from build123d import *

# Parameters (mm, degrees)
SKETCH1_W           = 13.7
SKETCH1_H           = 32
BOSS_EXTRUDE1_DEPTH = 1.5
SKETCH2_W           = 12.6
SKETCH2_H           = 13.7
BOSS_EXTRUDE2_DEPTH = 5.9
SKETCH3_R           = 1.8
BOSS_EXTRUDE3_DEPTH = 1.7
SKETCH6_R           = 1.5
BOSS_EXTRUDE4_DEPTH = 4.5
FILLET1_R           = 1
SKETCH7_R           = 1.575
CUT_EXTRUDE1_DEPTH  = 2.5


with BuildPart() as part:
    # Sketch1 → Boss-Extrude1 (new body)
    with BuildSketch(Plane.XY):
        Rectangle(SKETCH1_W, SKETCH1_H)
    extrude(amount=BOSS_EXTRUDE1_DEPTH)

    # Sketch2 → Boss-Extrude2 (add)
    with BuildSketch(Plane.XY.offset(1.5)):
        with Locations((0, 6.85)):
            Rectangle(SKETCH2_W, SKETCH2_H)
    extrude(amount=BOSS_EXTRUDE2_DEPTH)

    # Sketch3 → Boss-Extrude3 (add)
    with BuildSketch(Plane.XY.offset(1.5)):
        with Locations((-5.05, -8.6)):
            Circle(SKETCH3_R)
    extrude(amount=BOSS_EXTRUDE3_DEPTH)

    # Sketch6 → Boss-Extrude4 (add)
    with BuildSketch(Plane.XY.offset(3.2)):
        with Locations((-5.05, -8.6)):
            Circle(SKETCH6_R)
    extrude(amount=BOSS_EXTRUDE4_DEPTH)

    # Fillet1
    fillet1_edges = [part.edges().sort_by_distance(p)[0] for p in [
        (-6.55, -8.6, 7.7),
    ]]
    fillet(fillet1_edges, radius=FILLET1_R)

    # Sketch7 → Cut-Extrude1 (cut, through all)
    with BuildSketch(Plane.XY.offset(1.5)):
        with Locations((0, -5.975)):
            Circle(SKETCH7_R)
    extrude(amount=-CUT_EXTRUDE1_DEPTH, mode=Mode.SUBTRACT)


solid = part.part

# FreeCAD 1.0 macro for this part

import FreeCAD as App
import Part
import Sketcher


def edges_at(feature, points):
    """Names of the edges that pass closest to the given points."""
    edges = feature.Shape.Edges
    near = lambda p: min(range(len(edges)), key=lambda i: edges[i].distToShape(Part.Vertex(*p))[0])
    return sorted({f"Edge{near(p) + 1}" for p in points})

doc = App.newDocument("Part")
body = doc.addObject("PartDesign::Body", "Body")

# Sketch on XY plane
sketch1 = body.newObject("Sketcher::SketchObject", "Sketch")
sketch1.AttachmentSupport = (doc.getObject("XY_Plane"), [""])
sketch1.MapMode = "FlatFace"
sketch1.addGeometry([
    Part.LineSegment(App.Vector(-7, 16, 0), App.Vector(-7, -16, 0)),
    Part.LineSegment(App.Vector(-7, -16, 0), App.Vector(7, -16, 0)),
    Part.LineSegment(App.Vector(7, -16, 0), App.Vector(7, 16, 0)),
    Part.LineSegment(App.Vector(7, 16, 0), App.Vector(-7, 16, 0)),
], False)
sketch1.addConstraint([
    Sketcher.Constraint("Coincident", 0, 2, 1, 1),
    Sketcher.Constraint("Coincident", 1, 2, 2, 1),
    Sketcher.Constraint("Coincident", 2, 2, 3, 1),
    Sketcher.Constraint("Coincident", 3, 2, 0, 1),
    Sketcher.Constraint("Vertical", 0),
    Sketcher.Constraint("Horizontal", 1),
    Sketcher.Constraint("Vertical", 2),
    Sketcher.Constraint("Horizontal", 3),
    Sketcher.Constraint("Symmetric", 0, 2, 2, 2, -1, 1),
    Sketcher.Constraint("DistanceY", 0, 2, 0, 1, 32.0),
    Sketcher.Constraint("DistanceX", 1, 1, 1, 2, 13.7),
])
pad1 = body.newObject("PartDesign::Pad", "Pad")
pad1.Profile = sketch1
pad1.Length = 1.5

# Sketch on XY plane
sketch2 = body.newObject("Sketcher::SketchObject", "Sketch001")
sketch2.AttachmentSupport = (doc.getObject("XY_Plane"), [""])
sketch2.MapMode = "FlatFace"
sketch2.AttachmentOffset = App.Placement(App.Vector(0, 0, 1.5), App.Rotation())
sketch2.addGeometry([
    Part.LineSegment(App.Vector(-6, 14, 0), App.Vector(-6, 0, 0)),
    Part.LineSegment(App.Vector(-6, 0, 0), App.Vector(6, 0, 0)),
    Part.LineSegment(App.Vector(6, 0, 0), App.Vector(6, 14, 0)),
    Part.LineSegment(App.Vector(6, 14, 0), App.Vector(-6, 14, 0)),
], False)
sketch2.addConstraint([
    Sketcher.Constraint("Coincident", 0, 2, 1, 1),
    Sketcher.Constraint("Coincident", 1, 2, 2, 1),
    Sketcher.Constraint("Coincident", 2, 2, 3, 1),
    Sketcher.Constraint("Coincident", 3, 2, 0, 1),
    Sketcher.Constraint("Vertical", 0),
    Sketcher.Constraint("Horizontal", 1),
    Sketcher.Constraint("Vertical", 2),
    Sketcher.Constraint("Horizontal", 3),
    Sketcher.Constraint("Symmetric", 0, 2, 1, 2, -1, 1),
    Sketcher.Constraint("DistanceX", 1, 1, 1, 2, 12.6),
    Sketcher.Constraint("DistanceY", 0, 2, 0, 1, 13.7),
])
pad2 = body.newObject("PartDesign::Pad", "Pad001")
pad2.Profile = sketch2
pad2.Length = 5.9

# Sketch on XY plane
sketch3 = body.newObject("Sketcher::SketchObject", "Sketch002")
sketch3.AttachmentSupport = (doc.getObject("XY_Plane"), [""])
sketch3.MapMode = "FlatFace"
sketch3.AttachmentOffset = App.Placement(App.Vector(0, 0, 1.5), App.Rotation())
sketch3.addGeometry(Part.Circle(App.Vector(-5, -8.6, 0), App.Vector(0, 0, 1), 1.8), False)
sketch3.addConstraint([
    Sketcher.Constraint("Diameter", 0, 3.6),
    Sketcher.Constraint("DistanceY", 0, 3, -1, 1, 8.6),
    Sketcher.Constraint("DistanceX", 0, 3, -1, 1, 5.05),
])
pad3 = body.newObject("PartDesign::Pad", "Pad002")
pad3.Profile = sketch3
pad3.Length = 1.7

# Sketch on XY plane
sketch4 = body.newObject("Sketcher::SketchObject", "Sketch003")
sketch4.AttachmentSupport = (doc.getObject("XY_Plane"), [""])
sketch4.MapMode = "FlatFace"
sketch4.AttachmentOffset = App.Placement(App.Vector(0, 0, 3.2), App.Rotation())
sketch4.addGeometry(Part.Circle(App.Vector(-5, -8.6, 0), App.Vector(0, 0, 1), 1.5), False)
sketch4.addConstraint([
    Sketcher.Constraint("Diameter", 0, 3.0),
    Sketcher.Constraint("DistanceY", 0, 3, -1, 1, 8.6),
    Sketcher.Constraint("DistanceX", 0, 3, -1, 1, 5.05),
])
pad4 = body.newObject("PartDesign::Pad", "Pad003")
pad4.Profile = sketch4
pad4.Length = 4.5
doc.recompute()

fillet = body.newObject("PartDesign::Fillet", "Fillet")
fillet.Base = (pad4, edges_at(pad4, [(-6.55, -8.6, 7.7)]))
fillet.Radius = 1

# Sketch on XY plane
sketch5 = body.newObject("Sketcher::SketchObject", "Sketch004")
sketch5.AttachmentSupport = (doc.getObject("XY_Plane"), [""])
sketch5.MapMode = "FlatFace"
sketch5.AttachmentOffset = App.Placement(App.Vector(0, 0, 1.5), App.Rotation())
sketch5.addGeometry(Part.Circle(App.Vector(0, -6, 0), App.Vector(0, 0, 1), 1.6), False)
sketch5.addConstraint([
    Sketcher.Constraint("PointOnObject", 0, 3, -2),
    Sketcher.Constraint("Diameter", 0, 3.15),
    Sketcher.Constraint("DistanceY", 0, 3, -1, 1, 5.975),
])
pocket1 = body.newObject("PartDesign::Pocket", "Pocket")
pocket1.Profile = sketch5
pocket1.Type = "ThroughAll"

doc.recompute()
